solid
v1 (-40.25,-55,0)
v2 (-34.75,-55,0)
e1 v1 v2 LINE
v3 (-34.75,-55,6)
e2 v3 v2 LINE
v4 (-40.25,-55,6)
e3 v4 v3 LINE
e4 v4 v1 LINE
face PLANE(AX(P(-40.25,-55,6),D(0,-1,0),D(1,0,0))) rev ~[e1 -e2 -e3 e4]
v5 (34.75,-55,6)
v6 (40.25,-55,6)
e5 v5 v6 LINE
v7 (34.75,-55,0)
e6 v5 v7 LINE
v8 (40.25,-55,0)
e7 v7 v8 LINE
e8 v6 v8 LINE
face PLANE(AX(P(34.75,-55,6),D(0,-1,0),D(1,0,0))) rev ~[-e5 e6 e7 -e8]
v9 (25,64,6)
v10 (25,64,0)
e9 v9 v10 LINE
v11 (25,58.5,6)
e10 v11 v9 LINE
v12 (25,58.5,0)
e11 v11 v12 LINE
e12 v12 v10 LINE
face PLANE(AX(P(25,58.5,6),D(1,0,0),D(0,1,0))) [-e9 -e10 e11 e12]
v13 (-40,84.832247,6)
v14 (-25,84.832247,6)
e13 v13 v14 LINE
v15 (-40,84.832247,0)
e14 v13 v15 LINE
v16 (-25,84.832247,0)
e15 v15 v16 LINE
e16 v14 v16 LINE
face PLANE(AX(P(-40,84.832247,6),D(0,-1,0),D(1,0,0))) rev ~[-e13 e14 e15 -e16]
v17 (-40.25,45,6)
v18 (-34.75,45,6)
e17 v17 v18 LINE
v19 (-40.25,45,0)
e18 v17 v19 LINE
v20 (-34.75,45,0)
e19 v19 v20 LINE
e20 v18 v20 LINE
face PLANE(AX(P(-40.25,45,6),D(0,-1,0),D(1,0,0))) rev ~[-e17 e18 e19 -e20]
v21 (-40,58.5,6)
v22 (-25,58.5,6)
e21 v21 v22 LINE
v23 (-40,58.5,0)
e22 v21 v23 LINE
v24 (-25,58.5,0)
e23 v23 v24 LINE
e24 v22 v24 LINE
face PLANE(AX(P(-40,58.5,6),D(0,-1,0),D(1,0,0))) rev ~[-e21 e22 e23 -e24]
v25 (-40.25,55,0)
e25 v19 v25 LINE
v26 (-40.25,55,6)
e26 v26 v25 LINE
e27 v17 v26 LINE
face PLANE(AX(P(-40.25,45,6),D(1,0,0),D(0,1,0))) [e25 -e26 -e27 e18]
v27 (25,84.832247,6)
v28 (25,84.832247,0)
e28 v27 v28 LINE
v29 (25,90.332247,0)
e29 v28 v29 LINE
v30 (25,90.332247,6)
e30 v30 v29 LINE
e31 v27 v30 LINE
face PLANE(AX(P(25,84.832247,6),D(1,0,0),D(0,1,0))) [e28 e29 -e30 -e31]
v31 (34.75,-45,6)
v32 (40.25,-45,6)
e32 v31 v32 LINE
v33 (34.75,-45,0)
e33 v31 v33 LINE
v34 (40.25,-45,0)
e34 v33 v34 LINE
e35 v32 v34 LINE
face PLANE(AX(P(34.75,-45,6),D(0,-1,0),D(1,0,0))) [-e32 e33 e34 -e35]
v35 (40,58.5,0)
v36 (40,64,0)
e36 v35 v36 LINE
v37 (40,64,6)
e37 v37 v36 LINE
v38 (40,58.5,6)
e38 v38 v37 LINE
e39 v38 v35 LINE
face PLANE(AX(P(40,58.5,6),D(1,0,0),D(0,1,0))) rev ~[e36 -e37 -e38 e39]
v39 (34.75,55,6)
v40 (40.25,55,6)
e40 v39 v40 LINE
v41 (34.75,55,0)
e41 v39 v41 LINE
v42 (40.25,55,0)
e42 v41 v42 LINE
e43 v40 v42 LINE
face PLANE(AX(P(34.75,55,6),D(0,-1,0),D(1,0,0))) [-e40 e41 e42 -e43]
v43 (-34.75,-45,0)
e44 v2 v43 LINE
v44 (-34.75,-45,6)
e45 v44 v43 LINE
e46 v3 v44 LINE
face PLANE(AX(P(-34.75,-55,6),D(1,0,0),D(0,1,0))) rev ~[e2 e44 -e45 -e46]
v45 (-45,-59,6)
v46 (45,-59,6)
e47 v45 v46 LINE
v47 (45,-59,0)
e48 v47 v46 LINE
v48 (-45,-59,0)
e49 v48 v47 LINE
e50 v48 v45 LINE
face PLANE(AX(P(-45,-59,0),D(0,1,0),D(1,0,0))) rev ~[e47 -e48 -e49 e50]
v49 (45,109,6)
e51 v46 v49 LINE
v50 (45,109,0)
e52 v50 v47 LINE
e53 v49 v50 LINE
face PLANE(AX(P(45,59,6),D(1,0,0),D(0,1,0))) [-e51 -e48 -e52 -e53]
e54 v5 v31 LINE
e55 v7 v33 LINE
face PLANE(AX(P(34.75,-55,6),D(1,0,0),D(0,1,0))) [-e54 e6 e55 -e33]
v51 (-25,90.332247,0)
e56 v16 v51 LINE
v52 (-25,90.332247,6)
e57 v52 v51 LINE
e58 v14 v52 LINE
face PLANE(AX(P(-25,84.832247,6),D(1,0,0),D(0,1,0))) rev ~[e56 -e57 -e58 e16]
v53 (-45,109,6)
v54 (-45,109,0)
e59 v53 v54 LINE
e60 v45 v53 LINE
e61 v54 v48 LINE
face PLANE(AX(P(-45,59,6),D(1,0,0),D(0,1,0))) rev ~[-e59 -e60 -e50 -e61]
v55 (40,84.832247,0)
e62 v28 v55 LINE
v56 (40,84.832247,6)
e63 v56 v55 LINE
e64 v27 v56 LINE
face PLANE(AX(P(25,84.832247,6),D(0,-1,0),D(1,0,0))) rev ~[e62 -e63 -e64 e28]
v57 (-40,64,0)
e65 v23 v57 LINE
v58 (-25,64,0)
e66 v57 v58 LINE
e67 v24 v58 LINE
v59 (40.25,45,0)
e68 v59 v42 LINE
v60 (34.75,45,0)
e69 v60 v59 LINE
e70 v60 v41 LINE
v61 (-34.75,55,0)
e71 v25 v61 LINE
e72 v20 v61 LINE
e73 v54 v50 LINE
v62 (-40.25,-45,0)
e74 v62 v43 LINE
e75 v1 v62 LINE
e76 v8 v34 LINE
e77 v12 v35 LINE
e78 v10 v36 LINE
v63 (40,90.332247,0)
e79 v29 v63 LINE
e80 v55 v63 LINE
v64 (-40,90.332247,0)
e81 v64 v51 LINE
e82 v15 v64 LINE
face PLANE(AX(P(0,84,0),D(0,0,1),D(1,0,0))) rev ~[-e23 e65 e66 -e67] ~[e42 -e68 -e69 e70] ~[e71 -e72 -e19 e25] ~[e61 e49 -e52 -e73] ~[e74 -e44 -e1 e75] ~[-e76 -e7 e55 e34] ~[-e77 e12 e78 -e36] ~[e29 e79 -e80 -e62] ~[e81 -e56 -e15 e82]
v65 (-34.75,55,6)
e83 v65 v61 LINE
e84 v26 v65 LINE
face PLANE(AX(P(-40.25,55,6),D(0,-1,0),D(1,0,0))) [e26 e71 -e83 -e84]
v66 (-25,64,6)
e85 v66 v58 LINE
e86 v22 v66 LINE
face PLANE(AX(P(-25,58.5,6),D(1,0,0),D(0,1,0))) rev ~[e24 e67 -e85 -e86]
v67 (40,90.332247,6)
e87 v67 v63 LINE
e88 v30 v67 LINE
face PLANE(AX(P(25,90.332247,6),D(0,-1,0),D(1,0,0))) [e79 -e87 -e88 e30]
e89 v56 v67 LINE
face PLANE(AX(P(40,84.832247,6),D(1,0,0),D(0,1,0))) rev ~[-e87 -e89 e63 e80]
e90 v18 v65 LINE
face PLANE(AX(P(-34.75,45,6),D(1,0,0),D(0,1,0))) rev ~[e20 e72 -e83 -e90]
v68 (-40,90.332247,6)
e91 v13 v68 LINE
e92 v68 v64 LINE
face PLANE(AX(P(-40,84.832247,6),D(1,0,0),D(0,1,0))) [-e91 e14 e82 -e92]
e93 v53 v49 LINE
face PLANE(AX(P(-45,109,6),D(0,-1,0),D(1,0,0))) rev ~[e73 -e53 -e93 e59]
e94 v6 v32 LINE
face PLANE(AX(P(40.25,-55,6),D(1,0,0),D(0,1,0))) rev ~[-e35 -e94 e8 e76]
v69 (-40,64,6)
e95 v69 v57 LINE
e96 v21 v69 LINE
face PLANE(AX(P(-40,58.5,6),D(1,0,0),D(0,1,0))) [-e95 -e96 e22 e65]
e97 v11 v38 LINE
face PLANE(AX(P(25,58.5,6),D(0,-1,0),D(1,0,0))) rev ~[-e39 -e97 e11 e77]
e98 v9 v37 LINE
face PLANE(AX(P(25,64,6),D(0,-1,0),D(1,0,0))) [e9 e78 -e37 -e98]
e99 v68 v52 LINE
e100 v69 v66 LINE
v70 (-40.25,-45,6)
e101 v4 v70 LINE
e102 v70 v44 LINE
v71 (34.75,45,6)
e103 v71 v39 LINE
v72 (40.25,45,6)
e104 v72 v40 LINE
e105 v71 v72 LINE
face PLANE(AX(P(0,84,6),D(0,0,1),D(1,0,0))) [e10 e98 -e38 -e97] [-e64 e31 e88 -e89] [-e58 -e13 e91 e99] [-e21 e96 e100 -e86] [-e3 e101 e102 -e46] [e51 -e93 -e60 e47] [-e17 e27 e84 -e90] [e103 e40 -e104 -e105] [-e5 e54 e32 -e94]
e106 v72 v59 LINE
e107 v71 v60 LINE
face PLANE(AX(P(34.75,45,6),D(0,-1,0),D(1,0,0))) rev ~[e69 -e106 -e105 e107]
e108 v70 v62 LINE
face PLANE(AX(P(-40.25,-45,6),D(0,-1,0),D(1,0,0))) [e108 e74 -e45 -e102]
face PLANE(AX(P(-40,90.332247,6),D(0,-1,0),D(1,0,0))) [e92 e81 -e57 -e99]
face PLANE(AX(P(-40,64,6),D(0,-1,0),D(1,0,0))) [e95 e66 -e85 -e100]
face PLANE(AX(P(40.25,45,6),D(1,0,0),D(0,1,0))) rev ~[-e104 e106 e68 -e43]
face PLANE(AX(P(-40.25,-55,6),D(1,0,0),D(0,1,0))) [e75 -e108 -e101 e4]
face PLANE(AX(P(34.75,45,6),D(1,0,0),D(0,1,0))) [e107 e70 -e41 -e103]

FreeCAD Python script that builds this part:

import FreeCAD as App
import Part
import Sketcher

V = App.Vector
Q = App.Units.Quantity


def add_polygon(sketch, points):
    """Adds a closed chain of lines whose ends are joined by coincident constraints."""
    first, n = sketch.GeometryCount, len(points)
    for a, b in zip(points, points[1:] + points[:1]):
        sketch.addGeometry(Part.LineSegment(App.Vector(*a, 0), App.Vector(*b, 0)), False)
    for i in range(n):
        sketch.addConstraint(Sketcher.Constraint("Coincident", first + i, 2, first + (i + 1) % n, 1))

doc = App.newDocument("Part")
body = doc.addObject("PartDesign::Body", "Body")

# Sketch on XY plane
sketch1 = body.newObject("Sketcher::SketchObject", "Sketch")
sketch1.AttachmentSupport = (doc.getObject("XY_Plane"), [""])
sketch1.MapMode = "FlatFace"
add_polygon(sketch1, [(-45, 59), (-45, -59), (45, -59), (45, 59)])  # lines 0-3
sketch1.addConstraint([
    Sketcher.Constraint("Vertical", 0),
    Sketcher.Constraint("Horizontal", 1),
    Sketcher.Constraint("Vertical", 2),
    Sketcher.Constraint("Horizontal", 3),
    Sketcher.Constraint("Symmetric", 0, 2, 2, 2, -1, 1),
    Sketcher.Constraint("DistanceX", 1, 1, 1, 2, Q("90 mm")),
    Sketcher.Constraint("DistanceY", 0, 2, 0, 1, Q("118 mm")),
])
pad1 = body.newObject("PartDesign::Pad", "Pad")
pad1.Profile = sketch1
pad1.Length = 6

# Sketch on XY plane
sketch2 = body.newObject("Sketcher::SketchObject", "Sketch001")
sketch2.AttachmentSupport = (doc.getObject("XY_Plane"), [""])
sketch2.MapMode = "FlatFace"
sketch2.AttachmentOffset = App.Placement(V(0, 0, 6), App.Rotation())
add_polygon(sketch2, [(-45, 109), (-45, 59), (45, 59), (45, 109)])  # lines 0-3
sketch2.addConstraint([
    Sketcher.Constraint("Vertical", 0),
    Sketcher.Constraint("Horizontal", 1),
    Sketcher.Constraint("Vertical", 2),
    Sketcher.Constraint("Horizontal", 3),
    Sketcher.Constraint("DistanceX", 1, 1, 1, 2, Q("90 mm")),
    Sketcher.Constraint("DistanceY", 0, 2, 0, 1, Q("50 mm")),
    Sketcher.Constraint("DistanceX", 0, 2, -1, 1, Q("45 mm")),
    Sketcher.Constraint("DistanceY", -1, 1, 0, 2, Q("59 mm")),
])
pad2 = body.newObject("PartDesign::Pad", "Pad001")
pad2.Profile = sketch2
pad2.Length = 6
pad2.Reversed = True

# Sketch on XY plane
sketch3 = body.newObject("Sketcher::SketchObject", "Sketch002")
sketch3.AttachmentSupport = (doc.getObject("XY_Plane"), [""])
sketch3.MapMode = "FlatFace"
sketch3.AttachmentOffset = App.Placement(V(0, 0, 6), App.Rotation())
add_polygon(sketch3, [(-40, 55), (-40, 45), (-35, 45), (-35, 55)])  # lines 0-3
add_polygon(sketch3, [(35, 55), (35, 45), (40, 45), (40, 55)])  # lines 4-7
add_polygon(sketch3, [(35, -45), (35, -55), (40, -55), (40, -45)])  # lines 8-11
add_polygon(sketch3, [(-40, -45), (-40, -55), (-35, -55), (-35, -45)])  # lines 12-15
sketch3.addConstraint([
    Sketcher.Constraint("Vertical", 0),
    Sketcher.Constraint("Horizontal", 1),
    Sketcher.Constraint("Vertical", 2),
    Sketcher.Constraint("Horizontal", 3),
    Sketcher.Constraint("Vertical", 4),
    Sketcher.Constraint("Horizontal", 5),
    Sketcher.Constraint("Vertical", 6),
    Sketcher.Constraint("Horizontal", 7),
    Sketcher.Constraint("Vertical", 8),
    Sketcher.Constraint("Horizontal", 9),
    Sketcher.Constraint("Vertical", 10),
    Sketcher.Constraint("Horizontal", 11),
    Sketcher.Constraint("Vertical", 12),
    Sketcher.Constraint("Horizontal", 13),
    Sketcher.Constraint("Vertical", 14),
    Sketcher.Constraint("Horizontal", 15),
    Sketcher.Constraint("Symmetric", 2, 2, 8, 2, -1, 1),
    Sketcher.Constraint("Symmetric", 0, 2, 10, 2, -1, 1),
    Sketcher.Constraint("Symmetric", 6, 2, 12, 2, -1, 1),
    Sketcher.Constraint("Symmetric", 4, 2, 14, 2, -1, 1),
    Sketcher.Constraint("Symmetric", 1, 2, 4, 2, -2),
    Sketcher.Constraint("Symmetric", 3, 2, 6, 2, -2),
    Sketcher.Constraint("DistanceY", 0, 2, 0, 1, Q("10 mm")),
    Sketcher.Constraint("DistanceX", 1, 1, 1, 2, Q("5.5 mm")),
    Sketcher.Constraint("DistanceY", -1, 1, 0, 2, Q("45 mm")),
    Sketcher.Constraint("DistanceX", 0, 2, 4, 2, Q("75 mm")),
])
pocket1 = body.newObject("PartDesign::Pocket", "Pocket")
pocket1.Profile = sketch3
pocket1.Length = 6

# Sketch on XY plane
sketch4 = body.newObject("Sketcher::SketchObject", "Sketch003")
sketch4.AttachmentSupport = (doc.getObject("XY_Plane"), [""])
sketch4.MapMode = "FlatFace"
sketch4.AttachmentOffset = App.Placement(V(0, 0, 6), App.Rotation())
add_polygon(sketch4, [(-40, 64), (-40, 58), (-25, 58), (-25, 64)])  # lines 0-3
add_polygon(sketch4, [(25, 64), (25, 58), (40, 58), (40, 64)])  # lines 4-7
add_polygon(sketch4, [(-40, 90), (-40, 85), (-25, 85), (-25, 90)])  # lines 8-11
add_polygon(sketch4, [(25, 90), (25, 85), (40, 85), (40, 90)])  # lines 12-15
sketch4.addConstraint([
    Sketcher.Constraint("Vertical", 0),
    Sketcher.Constraint("Horizontal", 1),
    Sketcher.Constraint("Vertical", 2),
    Sketcher.Constraint("Horizontal", 3),
    Sketcher.Constraint("Vertical", 4),
    Sketcher.Constraint("Horizontal", 5),
    Sketcher.Constraint("Vertical", 6),
    Sketcher.Constraint("Horizontal", 7),
    Sketcher.Constraint("Vertical", 8),
    Sketcher.Constraint("Horizontal", 9),
    Sketcher.Constraint("Vertical", 10),
    Sketcher.Constraint("Horizontal", 11),
    Sketcher.Constraint("Vertical", 12),
    Sketcher.Constraint("Horizontal", 13),
    Sketcher.Constraint("Vertical", 14),
    Sketcher.Constraint("Horizontal", 15),
    Sketcher.Constraint("Symmetric", 1, 2, 4, 2, -2),
    Sketcher.Constraint("Symmetric", 3, 2, 6, 2, -2),
    Sketcher.Constraint("Symmetric", 9, 2, 12, 2, -2),
    Sketcher.Constraint("Symmetric", 11, 2, 14, 2, -2),
    Sketcher.Constraint("Vertical", 3, 2, 8, 2),
    Sketcher.Constraint("Vertical", 2, 2, 9, 2),
    Sketcher.Constraint("Equal", 6, 8),
    Sketcher.Constraint("DistanceX", 1, 1, 1, 2, Q("15 mm")),
    Sketcher.Constraint("DistanceY", 0, 2, 0, 1, Q("5.5 mm")),
    Sketcher.Constraint("DistanceX", 0, 2, -1, 1, Q("40 mm")),
    Sketcher.Constraint("DistanceY", -1, 1, 2, 2, Q("64 mm")),
    Sketcher.Constraint("DistanceY", -1, 1, 8, 2, Q("84.832247 mm")),
])
pocket2 = body.newObject("PartDesign::Pocket", "Pocket001")
pocket2.Profile = sketch4
pocket2.Length = 6

doc.recompute()
